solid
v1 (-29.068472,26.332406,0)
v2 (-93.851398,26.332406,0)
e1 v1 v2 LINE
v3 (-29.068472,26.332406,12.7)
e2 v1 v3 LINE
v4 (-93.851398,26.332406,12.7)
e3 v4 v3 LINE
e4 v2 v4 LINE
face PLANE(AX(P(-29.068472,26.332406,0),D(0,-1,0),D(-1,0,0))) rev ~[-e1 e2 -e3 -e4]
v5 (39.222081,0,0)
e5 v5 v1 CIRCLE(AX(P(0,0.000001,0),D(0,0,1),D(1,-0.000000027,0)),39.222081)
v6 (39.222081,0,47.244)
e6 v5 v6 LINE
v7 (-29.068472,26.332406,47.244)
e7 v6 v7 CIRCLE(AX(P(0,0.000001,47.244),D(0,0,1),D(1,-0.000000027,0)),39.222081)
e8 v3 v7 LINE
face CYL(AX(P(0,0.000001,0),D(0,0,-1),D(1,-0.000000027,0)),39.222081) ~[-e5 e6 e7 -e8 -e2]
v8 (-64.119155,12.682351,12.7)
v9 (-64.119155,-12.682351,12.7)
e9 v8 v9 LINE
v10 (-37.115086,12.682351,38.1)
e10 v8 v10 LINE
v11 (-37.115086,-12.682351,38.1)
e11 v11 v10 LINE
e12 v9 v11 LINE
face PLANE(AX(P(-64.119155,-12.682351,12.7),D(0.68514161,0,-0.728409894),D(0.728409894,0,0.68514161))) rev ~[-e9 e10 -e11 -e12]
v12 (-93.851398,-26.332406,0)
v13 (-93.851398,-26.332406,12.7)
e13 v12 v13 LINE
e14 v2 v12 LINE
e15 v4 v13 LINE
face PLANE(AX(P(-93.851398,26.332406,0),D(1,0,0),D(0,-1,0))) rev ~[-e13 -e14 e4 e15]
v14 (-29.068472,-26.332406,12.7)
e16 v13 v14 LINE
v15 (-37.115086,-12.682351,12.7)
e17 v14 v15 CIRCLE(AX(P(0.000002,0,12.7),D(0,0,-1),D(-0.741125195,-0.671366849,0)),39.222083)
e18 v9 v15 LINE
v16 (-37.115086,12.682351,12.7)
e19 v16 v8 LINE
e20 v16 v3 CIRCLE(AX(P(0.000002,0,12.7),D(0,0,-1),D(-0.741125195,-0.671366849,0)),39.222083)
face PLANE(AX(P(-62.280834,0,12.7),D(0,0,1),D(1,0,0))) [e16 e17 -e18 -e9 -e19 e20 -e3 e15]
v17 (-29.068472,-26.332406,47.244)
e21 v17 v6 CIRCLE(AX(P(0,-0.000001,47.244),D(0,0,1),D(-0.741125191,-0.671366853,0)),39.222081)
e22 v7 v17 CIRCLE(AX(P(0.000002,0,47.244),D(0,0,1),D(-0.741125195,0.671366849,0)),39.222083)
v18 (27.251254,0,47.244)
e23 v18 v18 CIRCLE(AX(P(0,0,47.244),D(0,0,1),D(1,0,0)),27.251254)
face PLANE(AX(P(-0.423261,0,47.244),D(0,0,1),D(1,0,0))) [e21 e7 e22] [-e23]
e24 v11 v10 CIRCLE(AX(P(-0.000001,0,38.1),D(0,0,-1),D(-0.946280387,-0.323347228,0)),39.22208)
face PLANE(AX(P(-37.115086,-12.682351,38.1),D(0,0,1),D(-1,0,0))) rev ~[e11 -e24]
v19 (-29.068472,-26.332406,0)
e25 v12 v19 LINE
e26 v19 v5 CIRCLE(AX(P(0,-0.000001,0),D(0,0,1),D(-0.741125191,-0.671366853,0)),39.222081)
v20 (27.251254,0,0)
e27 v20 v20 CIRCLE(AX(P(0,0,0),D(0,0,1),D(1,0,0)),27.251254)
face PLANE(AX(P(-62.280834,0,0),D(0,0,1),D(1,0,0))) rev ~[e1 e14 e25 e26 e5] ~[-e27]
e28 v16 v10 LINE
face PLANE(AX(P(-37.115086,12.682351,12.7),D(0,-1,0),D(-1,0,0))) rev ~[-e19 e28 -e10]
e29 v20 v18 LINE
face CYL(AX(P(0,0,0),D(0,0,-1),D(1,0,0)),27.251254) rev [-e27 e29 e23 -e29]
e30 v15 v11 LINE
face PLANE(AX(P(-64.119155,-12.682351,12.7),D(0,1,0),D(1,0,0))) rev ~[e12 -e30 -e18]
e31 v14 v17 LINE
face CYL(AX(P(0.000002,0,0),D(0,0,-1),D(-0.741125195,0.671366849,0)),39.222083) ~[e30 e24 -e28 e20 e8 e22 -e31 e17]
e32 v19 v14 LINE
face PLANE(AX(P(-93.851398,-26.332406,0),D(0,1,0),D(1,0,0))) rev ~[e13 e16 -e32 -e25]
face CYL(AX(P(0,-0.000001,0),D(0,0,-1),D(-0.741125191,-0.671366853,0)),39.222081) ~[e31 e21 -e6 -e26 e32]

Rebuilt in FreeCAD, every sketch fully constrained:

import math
import FreeCAD as App
import Part
import Sketcher

V = App.Vector
Q = App.Units.Quantity


def add_polygon(sketch, points):
    """Adds a closed chain of lines whose ends are joined by coincident constraints."""
    first, n = sketch.GeometryCount, len(points)
    for a, b in zip(points, points[1:] + points[:1]):
        sketch.addGeometry(Part.LineSegment(App.Vector(*a, 0), App.Vector(*b, 0)), False)
    for i in range(n):
        sketch.addConstraint(Sketcher.Constraint("Coincident", first + i, 2, first + (i + 1) % n, 1))

doc = App.newDocument("Part")
body = doc.addObject("PartDesign::Body", "Body")

# Sketch on XY plane
sketch1 = body.newObject("Sketcher::SketchObject", "Sketch")
sketch1.AttachmentSupport = (doc.getObject("XY_Plane"), [""])
sketch1.MapMode = "FlatFace"
sketch1.addGeometry(Part.ArcOfCircle(Part.Circle(V(0, 0, 0), V(0, 0, 1), 39), math.radians(-138), math.radians(0)), False)
sketch1.addGeometry(Part.ArcOfCircle(Part.Circle(V(0, 0, 0), V(0, 0, 1), 39), math.radians(0), math.radians(138)), False)
sketch1.addGeometry(Part.ArcOfCircle(Part.Circle(V(0, 0, 0), V(0, 0, 1), 39), math.radians(138), math.radians(222)), False)
sketch1.addGeometry(Part.Circle(V(0, 0, 0), V(0, 0, 1), 27), False)
sketch1.addConstraint(Sketcher.Constraint("Tangent", 0, 2, 1, 1))
sketch1.addConstraint(Sketcher.Constraint("Tangent", 1, 2, 2, 1))
sketch1.addConstraint(Sketcher.Constraint("Tangent", 2, 2, 0, 1))
sketch1.addConstraint(Sketcher.Constraint("Coincident", 0, 3, -1, 1))
sketch1.addConstraint(Sketcher.Constraint("Coincident", 3, 3, -1, 1))
sketch1.addConstraint(Sketcher.Constraint("PointOnObject", 0, 2, -1))
sketch1.addConstraint(Sketcher.Constraint("Vertical", 1, 2, 2, 2))
sketch1.addConstraint(Sketcher.Constraint("Radius", 0, Q("39.222081 mm")))
sketch1.addConstraint(Sketcher.Constraint("Diameter", 3, Q("54.502508 mm")))
sketch1.addConstraint(Sketcher.Constraint("DistanceX", 1, 2, -1, 1, Q("29.068472 mm")))
pad1 = body.newObject("PartDesign::Pad", "Pad")
pad1.Profile = sketch1
pad1.Length = Q("1.86 in")

# Sketch on XY plane
sketch2 = body.newObject("Sketcher::SketchObject", "Sketch001")
sketch2.AttachmentSupport = (doc.getObject("XY_Plane"), [""])
sketch2.MapMode = "FlatFace"
sketch2.addGeometry(Part.ArcOfCircle(Part.Circle(V(0, 0, 0), V(0, 0, 1), 39), math.radians(138), math.radians(222)), False)
sketch2.addGeometry(Part.LineSegment(V(-29, 26, 0), V(-94, 26, 0)), False)
sketch2.addGeometry(Part.LineSegment(V(-94, 26, 0), V(-94, -26, 0)), False)
sketch2.addGeometry(Part.LineSegment(V(-94, -26, 0), V(-29, -26, 0)), False)
sketch2.addConstraint(Sketcher.Constraint("Coincident", 0, 1, 1, 1))
sketch2.addConstraint(Sketcher.Constraint("Coincident", 1, 2, 2, 1))
sketch2.addConstraint(Sketcher.Constraint("Coincident", 2, 2, 3, 1))
sketch2.addConstraint(Sketcher.Constraint("Coincident", 3, 2, 0, 2))
sketch2.addConstraint(Sketcher.Constraint("Horizontal", 1))
sketch2.addConstraint(Sketcher.Constraint("Vertical", 2))
sketch2.addConstraint(Sketcher.Constraint("Horizontal", 3))
sketch2.addConstraint(Sketcher.Constraint("Coincident", 0, 3, -1, 1))
sketch2.addConstraint(Sketcher.Constraint("Vertical", 0, 1, 3, 2))
sketch2.addConstraint(Sketcher.Constraint("Radius", 0, Q("39.222083 mm")))
sketch2.addConstraint(Sketcher.Constraint("DistanceY", 2, 2, 2, 1, Q("52.664812 mm")))
sketch2.addConstraint(Sketcher.Constraint("DistanceX", 1, 2, -1, 1, Q("93.851398 mm")))
pad2 = body.newObject("PartDesign::Pad", "Pad001")
pad2.Profile = sketch2
pad2.Length = Q("0.5 in")

# Sketch on XY plane
sketch3 = body.newObject("Sketcher::SketchObject", "Sketch002")
sketch3.AttachmentSupport = (doc.getObject("XY_Plane"), [""])
sketch3.MapMode = "FlatFace"
sketch3.AttachmentOffset = App.Placement(V(0, 0, 0.5 * 25.4), App.Rotation())
sketch3.addGeometry(Part.ArcOfCircle(Part.Circle(V(0, 0, 0), V(0, 0, 1), 39), math.radians(161), math.radians(199)), False)
sketch3.addGeometry(Part.LineSegment(V(-37, 13, 0), V(-64, 13, 0)), False)
sketch3.addGeometry(Part.LineSegment(V(-64, 13, 0), V(-64, -13, 0)), False)
sketch3.addGeometry(Part.LineSegment(V(-64, -13, 0), V(-37, -13, 0)), False)
sketch3.addConstraint(Sketcher.Constraint("Coincident", 0, 1, 1, 1))
sketch3.addConstraint(Sketcher.Constraint("Coincident", 1, 2, 2, 1))
sketch3.addConstraint(Sketcher.Constraint("Coincident", 2, 2, 3, 1))
sketch3.addConstraint(Sketcher.Constraint("Coincident", 3, 2, 0, 2))
sketch3.addConstraint(Sketcher.Constraint("Horizontal", 1))
sketch3.addConstraint(Sketcher.Constraint("Vertical", 2))
sketch3.addConstraint(Sketcher.Constraint("Horizontal", 3))
sketch3.addConstraint(Sketcher.Constraint("Coincident", 0, 3, -1, 1))
sketch3.addConstraint(Sketcher.Constraint("Vertical", 0, 1, 3, 2))
sketch3.addConstraint(Sketcher.Constraint("Radius", 0, Q("39.22208 mm")))
sketch3.addConstraint(Sketcher.Constraint("DistanceX", 1, 2, 1, 1, Q("27.004069 mm")))
sketch3.addConstraint(Sketcher.Constraint("DistanceY", 2, 2, 0, 1, Q("25.364702 mm")))
pad3 = body.newObject("PartDesign::Pad", "Pad002")
pad3.Profile = sketch3
pad3.Length = Q("1 in")

# Sketch on XZ plane
sketch4 = body.newObject("Sketcher::SketchObject", "Sketch003")
sketch4.AttachmentSupport = (doc.getObject("XZ_Plane"), [""])
sketch4.MapMode = "FlatFace"
sketch4.AttachmentOffset = App.Placement(V(0, 0, 12.682351), App.Rotation())
add_polygon(sketch4, [(-64, 13), (-37, 38), (-64, 38)])  # lines 0-2
sketch4.addConstraint(Sketcher.Constraint("Horizontal", 1))
sketch4.addConstraint(Sketcher.Constraint("Vertical", 2))
sketch4.addConstraint(Sketcher.Constraint("DistanceY", 2, 2, 2, 1, Q("1 in")))
sketch4.addConstraint(Sketcher.Constraint("DistanceY", -1, 1, 0, 2, Q("1.5 in")))
sketch4.addConstraint(Sketcher.Constraint("DistanceX", 1, 2, 1, 1, Q("27.004069 mm")))
sketch4.addConstraint(Sketcher.Constraint("DistanceX", 0, 2, -1, 1, Q("37.115086 mm")))
pocket1 = body.newObject("PartDesign::Pocket", "Pocket")
pocket1.Profile = sketch4
pocket1.Type = "ThroughAll"

doc.recompute()
